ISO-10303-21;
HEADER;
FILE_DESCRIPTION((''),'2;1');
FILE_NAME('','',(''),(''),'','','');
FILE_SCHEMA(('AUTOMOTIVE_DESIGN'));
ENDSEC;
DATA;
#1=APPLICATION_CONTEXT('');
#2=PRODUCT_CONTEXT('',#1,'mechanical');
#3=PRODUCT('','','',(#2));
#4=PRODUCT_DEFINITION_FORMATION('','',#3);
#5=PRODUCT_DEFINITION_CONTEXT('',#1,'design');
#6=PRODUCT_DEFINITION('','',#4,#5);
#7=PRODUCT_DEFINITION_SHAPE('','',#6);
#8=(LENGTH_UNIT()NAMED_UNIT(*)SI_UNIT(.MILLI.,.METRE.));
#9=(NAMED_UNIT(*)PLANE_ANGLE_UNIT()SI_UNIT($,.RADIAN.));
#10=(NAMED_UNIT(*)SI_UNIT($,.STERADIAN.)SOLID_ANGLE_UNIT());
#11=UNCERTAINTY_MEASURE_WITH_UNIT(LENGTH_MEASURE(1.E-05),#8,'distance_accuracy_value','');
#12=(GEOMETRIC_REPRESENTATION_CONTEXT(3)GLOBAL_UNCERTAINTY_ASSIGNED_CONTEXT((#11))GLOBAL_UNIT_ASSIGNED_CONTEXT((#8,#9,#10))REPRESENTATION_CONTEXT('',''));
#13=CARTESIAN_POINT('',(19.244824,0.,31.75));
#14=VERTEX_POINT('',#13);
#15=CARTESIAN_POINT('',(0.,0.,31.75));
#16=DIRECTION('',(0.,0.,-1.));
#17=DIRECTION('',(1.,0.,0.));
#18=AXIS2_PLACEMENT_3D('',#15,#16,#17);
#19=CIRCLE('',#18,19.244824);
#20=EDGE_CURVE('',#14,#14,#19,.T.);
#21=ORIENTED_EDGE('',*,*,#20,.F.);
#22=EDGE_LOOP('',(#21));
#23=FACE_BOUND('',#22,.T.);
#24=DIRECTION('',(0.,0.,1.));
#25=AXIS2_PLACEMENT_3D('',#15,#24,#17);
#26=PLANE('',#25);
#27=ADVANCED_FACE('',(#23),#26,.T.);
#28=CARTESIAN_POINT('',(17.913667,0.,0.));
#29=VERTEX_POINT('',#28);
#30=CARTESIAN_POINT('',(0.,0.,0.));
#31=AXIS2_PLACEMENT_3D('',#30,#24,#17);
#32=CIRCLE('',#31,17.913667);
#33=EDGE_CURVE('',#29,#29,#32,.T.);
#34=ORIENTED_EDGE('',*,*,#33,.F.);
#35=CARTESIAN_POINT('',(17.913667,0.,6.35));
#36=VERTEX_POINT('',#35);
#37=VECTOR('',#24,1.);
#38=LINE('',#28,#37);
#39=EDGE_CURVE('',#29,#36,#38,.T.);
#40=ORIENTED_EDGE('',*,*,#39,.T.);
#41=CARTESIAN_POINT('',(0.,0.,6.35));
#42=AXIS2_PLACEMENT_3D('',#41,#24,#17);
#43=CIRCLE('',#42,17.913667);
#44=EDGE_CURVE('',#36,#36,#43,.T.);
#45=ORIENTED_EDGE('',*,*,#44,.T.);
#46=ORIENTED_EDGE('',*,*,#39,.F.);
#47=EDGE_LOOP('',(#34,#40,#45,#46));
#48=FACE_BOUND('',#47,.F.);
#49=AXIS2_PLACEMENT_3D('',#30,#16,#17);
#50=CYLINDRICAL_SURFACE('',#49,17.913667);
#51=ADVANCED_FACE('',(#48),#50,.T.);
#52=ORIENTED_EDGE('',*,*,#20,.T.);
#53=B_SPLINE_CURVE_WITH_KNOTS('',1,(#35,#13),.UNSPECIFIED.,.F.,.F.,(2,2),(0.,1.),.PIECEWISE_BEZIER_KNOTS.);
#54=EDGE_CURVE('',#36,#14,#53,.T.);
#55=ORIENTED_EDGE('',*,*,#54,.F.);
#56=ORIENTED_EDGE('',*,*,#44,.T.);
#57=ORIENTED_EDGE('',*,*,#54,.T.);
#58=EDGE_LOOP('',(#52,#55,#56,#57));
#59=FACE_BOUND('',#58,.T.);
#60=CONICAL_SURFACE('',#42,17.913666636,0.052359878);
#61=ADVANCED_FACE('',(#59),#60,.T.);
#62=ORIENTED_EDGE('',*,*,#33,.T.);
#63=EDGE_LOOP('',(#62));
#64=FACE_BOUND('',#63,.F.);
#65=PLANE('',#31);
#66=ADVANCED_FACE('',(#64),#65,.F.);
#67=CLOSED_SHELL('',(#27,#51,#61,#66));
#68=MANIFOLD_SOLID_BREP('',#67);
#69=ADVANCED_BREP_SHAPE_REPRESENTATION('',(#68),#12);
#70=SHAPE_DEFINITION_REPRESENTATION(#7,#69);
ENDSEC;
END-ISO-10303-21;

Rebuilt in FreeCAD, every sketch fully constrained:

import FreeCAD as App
import Part
import Sketcher
Q = App.Units.Quantity

doc = App.newDocument("Part")
body = doc.addObject("PartDesign::Body", "Body")

# Sketch on XY plane
sketch1 = body.newObject("Sketcher::SketchObject", "Sketch")
sketch1.AttachmentSupport = (doc.getObject("XY_Plane"), [""])
sketch1.MapMode = "FlatFace"
sketch1.addGeometry(Part.Circle(App.Vector(0, 0, 0), App.Vector(0, 0, 1), 18), False)
sketch1.addConstraint([
    Sketcher.Constraint("Coincident", 0, 3, -1, 1),
    Sketcher.Constraint("Diameter", 0, Q("35.827333 mm")),
])
pad1 = body.newObject("PartDesign::Pad", "Pad")
pad1.Profile = sketch1
pad1.Length = Q("0.25 in")

# Sketch on XY plane
sketch2 = body.newObject("Sketcher::SketchObject", "Sketch001")
sketch2.AttachmentSupport = (doc.getObject("XY_Plane"), [""])
sketch2.MapMode = "FlatFace"
sketch2.AttachmentOffset = App.Placement(App.Vector(0, 0, 0.25 * 25.4), App.Rotation())
sketch2.addGeometry(Part.Circle(App.Vector(0, 0, 0), App.Vector(0, 0, 1), 18), False)
sketch2.addConstraint([
    Sketcher.Constraint("Coincident", 0, 3, -1, 1),
    Sketcher.Constraint("Diameter", 0, Q("35.827333 mm")),
])
pad2 = body.newObject("PartDesign::Pad", "Pad001")
pad2.Profile = sketch2
pad2.Length = Q("1 in")
pad2.TaperAngle = 3

doc.recompute()
